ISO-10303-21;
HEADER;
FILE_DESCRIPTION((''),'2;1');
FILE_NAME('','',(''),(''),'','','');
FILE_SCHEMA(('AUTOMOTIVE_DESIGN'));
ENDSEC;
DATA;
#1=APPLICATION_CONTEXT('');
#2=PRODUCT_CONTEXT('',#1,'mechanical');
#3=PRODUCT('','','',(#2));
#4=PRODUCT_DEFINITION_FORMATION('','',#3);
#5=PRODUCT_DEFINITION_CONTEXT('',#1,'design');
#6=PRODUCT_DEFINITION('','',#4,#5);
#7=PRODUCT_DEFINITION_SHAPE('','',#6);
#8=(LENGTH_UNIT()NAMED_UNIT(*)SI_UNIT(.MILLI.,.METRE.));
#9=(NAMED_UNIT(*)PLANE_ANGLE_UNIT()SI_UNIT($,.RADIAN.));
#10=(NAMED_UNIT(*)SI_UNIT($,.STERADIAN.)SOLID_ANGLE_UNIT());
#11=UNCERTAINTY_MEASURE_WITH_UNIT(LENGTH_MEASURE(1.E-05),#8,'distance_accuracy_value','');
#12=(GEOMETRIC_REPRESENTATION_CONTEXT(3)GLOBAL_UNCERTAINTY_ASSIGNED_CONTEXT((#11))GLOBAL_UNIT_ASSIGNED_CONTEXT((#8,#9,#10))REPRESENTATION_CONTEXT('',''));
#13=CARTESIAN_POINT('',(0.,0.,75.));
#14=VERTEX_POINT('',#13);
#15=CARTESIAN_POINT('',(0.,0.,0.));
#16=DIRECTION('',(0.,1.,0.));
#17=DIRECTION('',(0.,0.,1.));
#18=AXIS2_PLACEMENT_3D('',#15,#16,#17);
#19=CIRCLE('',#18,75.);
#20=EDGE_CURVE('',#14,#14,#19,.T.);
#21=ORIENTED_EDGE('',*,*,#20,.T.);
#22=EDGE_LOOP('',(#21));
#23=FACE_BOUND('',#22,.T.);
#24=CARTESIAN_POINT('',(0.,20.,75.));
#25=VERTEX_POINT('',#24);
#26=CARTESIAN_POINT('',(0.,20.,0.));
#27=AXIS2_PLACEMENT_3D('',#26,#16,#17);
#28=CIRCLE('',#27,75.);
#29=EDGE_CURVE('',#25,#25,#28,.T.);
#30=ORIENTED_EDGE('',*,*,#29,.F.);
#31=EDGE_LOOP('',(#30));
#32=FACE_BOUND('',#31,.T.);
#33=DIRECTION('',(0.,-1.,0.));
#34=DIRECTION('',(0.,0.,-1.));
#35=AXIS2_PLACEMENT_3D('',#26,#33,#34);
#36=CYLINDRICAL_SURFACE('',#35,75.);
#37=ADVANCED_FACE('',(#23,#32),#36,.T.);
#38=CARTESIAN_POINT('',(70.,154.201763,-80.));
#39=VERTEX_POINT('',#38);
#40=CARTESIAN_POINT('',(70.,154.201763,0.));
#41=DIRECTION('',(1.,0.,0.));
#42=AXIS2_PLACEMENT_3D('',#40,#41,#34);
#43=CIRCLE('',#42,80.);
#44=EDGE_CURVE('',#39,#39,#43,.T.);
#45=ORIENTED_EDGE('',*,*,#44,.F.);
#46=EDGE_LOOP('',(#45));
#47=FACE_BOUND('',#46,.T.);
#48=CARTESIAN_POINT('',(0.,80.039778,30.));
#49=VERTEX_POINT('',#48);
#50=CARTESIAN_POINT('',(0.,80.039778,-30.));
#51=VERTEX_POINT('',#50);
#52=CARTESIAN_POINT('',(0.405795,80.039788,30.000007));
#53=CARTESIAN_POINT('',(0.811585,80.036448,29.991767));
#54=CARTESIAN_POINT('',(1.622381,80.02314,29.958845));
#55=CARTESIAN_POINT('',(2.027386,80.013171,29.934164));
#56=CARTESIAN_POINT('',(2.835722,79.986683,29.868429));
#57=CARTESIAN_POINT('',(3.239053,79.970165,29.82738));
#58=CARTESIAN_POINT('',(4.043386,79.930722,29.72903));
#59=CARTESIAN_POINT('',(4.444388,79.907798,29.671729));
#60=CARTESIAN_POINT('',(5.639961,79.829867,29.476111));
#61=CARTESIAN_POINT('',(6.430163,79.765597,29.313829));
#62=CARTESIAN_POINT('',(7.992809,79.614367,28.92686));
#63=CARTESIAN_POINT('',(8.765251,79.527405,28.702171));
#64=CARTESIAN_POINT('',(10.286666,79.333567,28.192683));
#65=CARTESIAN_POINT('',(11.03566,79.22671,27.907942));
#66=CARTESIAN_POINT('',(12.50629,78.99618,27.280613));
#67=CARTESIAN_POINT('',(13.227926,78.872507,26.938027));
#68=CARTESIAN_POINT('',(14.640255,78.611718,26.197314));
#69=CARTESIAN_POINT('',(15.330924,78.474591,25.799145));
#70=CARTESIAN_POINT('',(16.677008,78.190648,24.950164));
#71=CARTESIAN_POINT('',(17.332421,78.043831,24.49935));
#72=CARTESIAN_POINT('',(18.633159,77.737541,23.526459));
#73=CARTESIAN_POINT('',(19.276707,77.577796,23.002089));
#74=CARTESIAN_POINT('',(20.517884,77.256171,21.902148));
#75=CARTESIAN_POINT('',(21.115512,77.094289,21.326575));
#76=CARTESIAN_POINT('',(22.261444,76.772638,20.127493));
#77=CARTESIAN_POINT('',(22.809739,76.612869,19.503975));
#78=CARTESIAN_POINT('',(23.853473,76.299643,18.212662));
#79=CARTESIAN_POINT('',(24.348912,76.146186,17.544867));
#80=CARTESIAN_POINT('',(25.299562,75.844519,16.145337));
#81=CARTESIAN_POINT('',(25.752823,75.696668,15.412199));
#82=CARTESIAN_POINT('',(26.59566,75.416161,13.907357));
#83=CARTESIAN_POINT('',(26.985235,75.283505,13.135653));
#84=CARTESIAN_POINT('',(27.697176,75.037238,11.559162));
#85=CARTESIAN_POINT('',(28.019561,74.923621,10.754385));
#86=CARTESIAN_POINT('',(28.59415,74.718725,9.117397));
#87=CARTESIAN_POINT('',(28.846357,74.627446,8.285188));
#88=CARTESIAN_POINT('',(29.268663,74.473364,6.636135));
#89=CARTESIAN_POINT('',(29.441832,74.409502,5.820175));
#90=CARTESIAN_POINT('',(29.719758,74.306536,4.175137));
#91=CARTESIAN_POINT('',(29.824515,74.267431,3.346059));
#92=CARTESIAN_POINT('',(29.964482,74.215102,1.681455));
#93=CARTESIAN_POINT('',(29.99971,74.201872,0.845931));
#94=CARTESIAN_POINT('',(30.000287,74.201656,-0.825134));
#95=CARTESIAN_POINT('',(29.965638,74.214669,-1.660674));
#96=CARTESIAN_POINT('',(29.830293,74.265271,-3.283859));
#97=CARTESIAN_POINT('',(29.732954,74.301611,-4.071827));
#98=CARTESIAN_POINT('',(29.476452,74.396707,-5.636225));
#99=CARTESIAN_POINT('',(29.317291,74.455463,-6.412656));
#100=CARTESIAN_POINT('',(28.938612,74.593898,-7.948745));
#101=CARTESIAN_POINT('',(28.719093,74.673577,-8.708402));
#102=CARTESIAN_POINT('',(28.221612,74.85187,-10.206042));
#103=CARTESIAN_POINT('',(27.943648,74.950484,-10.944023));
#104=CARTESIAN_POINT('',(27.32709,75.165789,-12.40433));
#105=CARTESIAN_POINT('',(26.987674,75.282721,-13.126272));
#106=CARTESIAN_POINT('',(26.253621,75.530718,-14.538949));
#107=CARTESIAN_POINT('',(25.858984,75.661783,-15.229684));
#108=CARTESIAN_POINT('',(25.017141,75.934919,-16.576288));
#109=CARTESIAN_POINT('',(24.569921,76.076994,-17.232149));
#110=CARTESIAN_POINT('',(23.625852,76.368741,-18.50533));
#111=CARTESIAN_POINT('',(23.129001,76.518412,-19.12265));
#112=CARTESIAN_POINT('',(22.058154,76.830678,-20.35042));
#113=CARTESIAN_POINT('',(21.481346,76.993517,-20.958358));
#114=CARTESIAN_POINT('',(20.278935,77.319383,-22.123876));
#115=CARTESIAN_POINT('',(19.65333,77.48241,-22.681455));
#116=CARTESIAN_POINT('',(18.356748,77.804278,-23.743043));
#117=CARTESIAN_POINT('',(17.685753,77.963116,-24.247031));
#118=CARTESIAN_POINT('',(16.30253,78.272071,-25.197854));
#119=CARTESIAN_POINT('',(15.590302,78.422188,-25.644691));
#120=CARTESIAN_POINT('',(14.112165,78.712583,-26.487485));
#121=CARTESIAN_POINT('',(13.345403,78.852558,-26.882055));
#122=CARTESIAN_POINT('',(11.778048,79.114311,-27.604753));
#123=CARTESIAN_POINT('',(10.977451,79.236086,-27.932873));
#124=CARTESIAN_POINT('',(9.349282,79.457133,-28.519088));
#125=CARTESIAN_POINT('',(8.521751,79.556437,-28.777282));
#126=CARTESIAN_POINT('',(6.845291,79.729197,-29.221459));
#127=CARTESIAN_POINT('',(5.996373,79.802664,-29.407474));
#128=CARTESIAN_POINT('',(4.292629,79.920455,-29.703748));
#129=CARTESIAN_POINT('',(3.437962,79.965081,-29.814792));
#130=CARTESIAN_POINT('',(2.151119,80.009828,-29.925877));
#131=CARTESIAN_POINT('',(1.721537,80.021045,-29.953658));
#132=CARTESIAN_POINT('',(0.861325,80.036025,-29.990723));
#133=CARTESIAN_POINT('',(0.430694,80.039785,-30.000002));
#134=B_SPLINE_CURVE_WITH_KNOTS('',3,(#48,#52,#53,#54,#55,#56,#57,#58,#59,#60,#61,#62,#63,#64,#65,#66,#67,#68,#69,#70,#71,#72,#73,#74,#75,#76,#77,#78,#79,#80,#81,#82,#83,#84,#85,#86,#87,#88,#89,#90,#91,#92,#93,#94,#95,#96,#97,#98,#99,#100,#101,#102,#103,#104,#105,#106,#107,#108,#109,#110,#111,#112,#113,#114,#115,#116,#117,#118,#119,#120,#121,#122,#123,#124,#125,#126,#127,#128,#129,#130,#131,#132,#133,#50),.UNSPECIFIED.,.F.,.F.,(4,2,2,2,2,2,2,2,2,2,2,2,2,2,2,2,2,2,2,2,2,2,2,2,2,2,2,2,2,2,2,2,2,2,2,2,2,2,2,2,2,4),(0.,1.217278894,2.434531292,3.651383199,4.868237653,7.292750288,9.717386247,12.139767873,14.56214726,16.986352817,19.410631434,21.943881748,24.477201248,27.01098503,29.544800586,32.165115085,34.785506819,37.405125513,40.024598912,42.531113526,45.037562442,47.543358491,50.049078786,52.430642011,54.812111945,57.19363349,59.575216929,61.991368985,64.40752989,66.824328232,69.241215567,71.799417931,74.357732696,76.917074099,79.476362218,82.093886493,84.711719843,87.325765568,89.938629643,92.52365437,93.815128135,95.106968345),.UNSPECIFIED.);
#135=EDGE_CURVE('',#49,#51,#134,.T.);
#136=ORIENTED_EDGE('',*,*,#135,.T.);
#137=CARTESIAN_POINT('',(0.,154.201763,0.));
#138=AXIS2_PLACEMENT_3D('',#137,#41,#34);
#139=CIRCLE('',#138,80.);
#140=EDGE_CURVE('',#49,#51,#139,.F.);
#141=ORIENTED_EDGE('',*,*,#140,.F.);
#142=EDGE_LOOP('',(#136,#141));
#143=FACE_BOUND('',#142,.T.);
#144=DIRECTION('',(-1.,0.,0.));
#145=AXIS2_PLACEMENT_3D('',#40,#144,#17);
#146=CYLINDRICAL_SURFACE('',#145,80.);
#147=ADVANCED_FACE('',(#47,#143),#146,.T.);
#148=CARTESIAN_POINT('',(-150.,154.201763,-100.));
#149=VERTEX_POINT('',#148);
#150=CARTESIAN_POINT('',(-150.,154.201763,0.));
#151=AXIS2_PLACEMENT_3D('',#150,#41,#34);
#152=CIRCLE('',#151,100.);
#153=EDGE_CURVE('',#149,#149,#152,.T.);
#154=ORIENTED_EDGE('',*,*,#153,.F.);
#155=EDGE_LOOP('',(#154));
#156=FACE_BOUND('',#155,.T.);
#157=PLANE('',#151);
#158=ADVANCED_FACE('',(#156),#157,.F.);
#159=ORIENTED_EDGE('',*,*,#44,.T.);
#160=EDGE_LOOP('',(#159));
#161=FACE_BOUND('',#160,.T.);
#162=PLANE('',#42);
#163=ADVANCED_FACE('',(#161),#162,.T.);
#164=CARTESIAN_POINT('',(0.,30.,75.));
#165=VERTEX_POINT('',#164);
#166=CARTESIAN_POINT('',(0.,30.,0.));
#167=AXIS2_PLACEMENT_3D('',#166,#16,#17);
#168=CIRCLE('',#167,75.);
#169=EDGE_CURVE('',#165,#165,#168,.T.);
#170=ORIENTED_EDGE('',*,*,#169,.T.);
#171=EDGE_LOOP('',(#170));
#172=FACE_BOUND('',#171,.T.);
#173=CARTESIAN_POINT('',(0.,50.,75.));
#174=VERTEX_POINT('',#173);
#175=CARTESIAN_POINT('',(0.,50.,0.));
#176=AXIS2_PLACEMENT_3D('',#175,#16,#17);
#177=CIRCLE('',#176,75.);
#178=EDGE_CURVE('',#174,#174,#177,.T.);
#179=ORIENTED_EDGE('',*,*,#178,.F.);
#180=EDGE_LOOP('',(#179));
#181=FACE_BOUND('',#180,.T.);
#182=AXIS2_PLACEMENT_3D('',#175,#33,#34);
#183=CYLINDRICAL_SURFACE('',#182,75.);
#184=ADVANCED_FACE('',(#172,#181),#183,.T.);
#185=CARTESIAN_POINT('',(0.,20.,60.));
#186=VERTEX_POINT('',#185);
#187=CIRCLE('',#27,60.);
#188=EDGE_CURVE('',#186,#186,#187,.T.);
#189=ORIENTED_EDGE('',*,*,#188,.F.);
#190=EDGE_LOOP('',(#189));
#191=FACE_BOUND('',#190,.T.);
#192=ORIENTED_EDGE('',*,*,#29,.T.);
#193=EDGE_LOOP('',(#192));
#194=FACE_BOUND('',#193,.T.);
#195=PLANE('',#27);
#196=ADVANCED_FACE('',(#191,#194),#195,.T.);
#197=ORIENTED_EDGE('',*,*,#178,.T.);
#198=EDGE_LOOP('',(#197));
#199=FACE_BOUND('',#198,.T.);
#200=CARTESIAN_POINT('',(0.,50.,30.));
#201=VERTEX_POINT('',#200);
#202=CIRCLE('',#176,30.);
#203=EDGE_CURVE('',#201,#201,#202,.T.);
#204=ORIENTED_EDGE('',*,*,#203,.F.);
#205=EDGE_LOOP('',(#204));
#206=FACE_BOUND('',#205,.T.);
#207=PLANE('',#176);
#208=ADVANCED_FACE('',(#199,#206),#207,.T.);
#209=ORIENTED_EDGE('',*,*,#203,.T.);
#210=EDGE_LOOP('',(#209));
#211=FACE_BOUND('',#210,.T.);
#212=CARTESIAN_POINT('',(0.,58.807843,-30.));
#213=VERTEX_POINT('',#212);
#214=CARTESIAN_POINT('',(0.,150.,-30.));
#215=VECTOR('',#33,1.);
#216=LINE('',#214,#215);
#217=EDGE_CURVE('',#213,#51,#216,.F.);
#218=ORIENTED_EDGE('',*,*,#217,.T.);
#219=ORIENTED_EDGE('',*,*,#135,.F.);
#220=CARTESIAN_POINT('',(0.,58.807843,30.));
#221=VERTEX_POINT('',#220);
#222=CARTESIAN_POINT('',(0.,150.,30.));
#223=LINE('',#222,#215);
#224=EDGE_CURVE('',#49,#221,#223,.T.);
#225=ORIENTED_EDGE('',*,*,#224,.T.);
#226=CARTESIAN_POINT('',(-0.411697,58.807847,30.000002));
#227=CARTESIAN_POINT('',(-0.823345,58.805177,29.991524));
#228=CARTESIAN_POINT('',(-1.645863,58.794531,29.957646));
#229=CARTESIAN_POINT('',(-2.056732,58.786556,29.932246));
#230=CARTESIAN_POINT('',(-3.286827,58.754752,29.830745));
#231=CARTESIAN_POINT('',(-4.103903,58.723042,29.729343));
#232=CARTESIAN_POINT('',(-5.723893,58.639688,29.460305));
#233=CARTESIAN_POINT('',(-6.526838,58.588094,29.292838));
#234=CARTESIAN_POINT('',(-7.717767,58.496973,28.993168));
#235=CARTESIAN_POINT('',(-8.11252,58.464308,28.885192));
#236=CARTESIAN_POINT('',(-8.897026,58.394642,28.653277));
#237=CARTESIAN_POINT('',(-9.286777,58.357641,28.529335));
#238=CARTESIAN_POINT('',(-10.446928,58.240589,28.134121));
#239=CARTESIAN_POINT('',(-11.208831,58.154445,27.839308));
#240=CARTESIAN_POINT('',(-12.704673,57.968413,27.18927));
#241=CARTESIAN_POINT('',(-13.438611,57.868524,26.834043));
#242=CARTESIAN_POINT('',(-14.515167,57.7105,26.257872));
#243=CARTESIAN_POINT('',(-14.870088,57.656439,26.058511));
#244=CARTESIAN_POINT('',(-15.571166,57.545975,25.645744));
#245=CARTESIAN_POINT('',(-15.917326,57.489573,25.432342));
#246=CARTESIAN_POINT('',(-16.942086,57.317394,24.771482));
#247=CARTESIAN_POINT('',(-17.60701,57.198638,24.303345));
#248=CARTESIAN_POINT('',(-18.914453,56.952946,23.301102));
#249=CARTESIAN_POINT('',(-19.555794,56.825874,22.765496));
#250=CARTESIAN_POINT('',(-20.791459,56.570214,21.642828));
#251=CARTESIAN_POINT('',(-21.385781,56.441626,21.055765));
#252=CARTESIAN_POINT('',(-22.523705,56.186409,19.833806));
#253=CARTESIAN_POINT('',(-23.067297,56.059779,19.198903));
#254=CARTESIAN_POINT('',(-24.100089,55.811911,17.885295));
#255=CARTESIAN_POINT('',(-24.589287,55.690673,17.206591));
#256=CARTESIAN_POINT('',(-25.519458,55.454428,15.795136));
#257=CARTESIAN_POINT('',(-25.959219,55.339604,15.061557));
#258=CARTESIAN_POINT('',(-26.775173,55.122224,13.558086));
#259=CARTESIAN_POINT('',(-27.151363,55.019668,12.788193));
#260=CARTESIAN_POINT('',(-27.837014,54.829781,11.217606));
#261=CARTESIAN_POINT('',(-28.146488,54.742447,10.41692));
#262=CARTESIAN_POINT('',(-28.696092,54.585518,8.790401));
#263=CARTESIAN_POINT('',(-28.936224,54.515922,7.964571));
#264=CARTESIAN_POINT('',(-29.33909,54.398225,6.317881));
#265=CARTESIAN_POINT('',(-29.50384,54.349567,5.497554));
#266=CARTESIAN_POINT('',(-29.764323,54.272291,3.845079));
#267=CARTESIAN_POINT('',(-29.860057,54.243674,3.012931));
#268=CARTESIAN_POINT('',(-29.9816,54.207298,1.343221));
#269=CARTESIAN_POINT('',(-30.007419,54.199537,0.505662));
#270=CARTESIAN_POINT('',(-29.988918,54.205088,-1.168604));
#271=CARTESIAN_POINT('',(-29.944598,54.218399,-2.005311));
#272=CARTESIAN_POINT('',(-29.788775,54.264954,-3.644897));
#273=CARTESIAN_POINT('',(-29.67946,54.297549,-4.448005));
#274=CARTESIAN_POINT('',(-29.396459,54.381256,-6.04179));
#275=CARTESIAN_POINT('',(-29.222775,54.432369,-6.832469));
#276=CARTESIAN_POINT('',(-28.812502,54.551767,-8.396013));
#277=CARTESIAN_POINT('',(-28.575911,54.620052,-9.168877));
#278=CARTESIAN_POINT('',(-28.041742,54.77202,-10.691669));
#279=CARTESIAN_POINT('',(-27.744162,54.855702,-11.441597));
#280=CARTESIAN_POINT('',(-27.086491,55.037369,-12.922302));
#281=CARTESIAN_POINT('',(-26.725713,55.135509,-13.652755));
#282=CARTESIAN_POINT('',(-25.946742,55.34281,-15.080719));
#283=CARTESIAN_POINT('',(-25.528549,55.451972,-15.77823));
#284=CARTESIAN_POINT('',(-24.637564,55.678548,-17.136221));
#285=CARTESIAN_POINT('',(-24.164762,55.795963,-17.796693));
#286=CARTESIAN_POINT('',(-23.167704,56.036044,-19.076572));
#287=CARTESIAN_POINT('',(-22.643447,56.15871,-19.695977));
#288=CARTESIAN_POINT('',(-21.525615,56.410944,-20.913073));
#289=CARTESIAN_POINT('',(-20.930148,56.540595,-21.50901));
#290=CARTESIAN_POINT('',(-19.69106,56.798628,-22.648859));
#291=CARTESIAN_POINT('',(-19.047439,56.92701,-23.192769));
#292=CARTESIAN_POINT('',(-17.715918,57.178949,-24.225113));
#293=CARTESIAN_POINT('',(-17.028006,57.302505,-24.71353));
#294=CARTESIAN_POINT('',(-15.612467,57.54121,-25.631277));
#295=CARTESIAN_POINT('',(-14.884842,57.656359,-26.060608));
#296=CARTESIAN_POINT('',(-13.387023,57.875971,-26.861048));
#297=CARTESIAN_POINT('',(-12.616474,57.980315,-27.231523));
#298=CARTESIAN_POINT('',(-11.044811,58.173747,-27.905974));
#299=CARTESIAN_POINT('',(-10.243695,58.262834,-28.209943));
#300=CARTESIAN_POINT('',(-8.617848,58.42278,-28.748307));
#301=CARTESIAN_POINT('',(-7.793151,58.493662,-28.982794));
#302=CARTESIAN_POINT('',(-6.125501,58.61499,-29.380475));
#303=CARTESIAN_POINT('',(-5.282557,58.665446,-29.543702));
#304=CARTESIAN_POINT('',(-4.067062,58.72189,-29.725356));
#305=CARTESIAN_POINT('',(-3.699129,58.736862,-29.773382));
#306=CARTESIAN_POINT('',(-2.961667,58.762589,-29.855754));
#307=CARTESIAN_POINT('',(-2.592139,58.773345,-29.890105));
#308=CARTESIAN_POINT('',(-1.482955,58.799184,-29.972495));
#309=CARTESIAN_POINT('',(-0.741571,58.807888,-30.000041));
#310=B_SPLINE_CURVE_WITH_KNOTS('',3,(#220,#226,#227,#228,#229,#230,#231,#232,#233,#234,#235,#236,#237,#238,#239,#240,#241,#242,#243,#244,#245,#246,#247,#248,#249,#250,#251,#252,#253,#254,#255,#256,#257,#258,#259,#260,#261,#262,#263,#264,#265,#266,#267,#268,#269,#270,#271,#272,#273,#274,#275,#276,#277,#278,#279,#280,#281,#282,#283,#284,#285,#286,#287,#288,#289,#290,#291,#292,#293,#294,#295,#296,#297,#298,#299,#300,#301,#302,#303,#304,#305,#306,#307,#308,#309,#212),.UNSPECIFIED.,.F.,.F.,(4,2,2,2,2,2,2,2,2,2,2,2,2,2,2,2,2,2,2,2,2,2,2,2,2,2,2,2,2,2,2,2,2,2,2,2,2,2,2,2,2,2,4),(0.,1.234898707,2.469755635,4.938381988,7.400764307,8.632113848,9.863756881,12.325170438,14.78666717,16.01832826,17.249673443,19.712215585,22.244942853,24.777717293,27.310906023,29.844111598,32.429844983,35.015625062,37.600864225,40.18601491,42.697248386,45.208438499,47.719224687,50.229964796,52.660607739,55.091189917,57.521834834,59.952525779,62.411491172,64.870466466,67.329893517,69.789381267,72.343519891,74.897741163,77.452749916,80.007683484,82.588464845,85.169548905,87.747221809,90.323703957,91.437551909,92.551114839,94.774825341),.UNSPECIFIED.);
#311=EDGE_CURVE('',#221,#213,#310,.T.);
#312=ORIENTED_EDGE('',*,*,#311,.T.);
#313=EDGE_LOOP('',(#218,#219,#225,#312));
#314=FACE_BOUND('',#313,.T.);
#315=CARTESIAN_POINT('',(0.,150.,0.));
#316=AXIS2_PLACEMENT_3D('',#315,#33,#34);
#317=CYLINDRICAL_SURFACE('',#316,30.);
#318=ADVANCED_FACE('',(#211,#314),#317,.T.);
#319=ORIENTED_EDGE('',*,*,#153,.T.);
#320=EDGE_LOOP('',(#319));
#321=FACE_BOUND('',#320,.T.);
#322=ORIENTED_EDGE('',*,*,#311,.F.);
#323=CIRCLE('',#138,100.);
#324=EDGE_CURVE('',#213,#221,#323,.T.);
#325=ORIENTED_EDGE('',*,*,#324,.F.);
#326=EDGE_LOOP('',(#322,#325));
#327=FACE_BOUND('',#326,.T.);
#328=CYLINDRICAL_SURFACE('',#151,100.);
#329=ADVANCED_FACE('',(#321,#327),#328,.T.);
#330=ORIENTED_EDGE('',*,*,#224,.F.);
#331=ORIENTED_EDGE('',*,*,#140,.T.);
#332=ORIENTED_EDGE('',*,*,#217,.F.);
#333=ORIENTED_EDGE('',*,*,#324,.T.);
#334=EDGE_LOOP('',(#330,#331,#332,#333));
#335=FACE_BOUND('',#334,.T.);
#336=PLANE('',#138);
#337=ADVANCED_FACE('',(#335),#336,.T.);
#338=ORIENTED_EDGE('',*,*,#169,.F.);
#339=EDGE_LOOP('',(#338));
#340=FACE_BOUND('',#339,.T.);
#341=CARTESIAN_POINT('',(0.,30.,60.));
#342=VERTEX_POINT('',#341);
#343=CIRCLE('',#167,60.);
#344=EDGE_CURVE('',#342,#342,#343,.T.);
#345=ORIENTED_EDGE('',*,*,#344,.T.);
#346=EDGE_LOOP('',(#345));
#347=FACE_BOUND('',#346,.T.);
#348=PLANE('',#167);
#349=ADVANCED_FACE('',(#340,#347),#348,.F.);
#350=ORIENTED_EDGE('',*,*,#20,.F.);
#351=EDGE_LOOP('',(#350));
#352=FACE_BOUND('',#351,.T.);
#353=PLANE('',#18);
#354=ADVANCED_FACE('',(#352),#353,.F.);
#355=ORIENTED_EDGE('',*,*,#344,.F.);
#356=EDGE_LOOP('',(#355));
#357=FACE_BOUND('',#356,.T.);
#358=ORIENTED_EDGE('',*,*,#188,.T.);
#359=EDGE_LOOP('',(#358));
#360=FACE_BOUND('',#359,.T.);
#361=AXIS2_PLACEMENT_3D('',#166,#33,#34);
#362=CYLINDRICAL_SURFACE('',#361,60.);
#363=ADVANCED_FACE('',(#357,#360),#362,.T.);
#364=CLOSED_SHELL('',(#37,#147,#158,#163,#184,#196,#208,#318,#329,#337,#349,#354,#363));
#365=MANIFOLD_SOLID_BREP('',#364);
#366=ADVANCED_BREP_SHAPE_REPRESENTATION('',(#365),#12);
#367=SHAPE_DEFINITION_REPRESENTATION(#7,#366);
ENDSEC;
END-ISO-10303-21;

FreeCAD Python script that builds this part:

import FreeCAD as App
import Part
import Sketcher
from FreeCAD import Vector
Q = App.Units.Quantity

doc = App.newDocument("Part")
body = doc.addObject("PartDesign::Body", "Body")

# Sketch on XZ plane
sketch1 = doc.addObject("Sketcher::SketchObject", "Sketch")
body.addObject(sketch1)
sketch1.AttachmentSupport = (doc.XZ_Plane, [""])
sketch1.MapMode = "FlatFace"
sketch1.addGeometry(Part.Circle(Vector(0, 0, 0), Vector(0, 0, 1), 75), False)
sketch1.addConstraint([
    Sketcher.Constraint("Coincident", 0, 3, -1, 1),
    Sketcher.Constraint("Diameter", 0, Q("150 mm")),
])
pad1 = doc.addObject("PartDesign::Pad", "Pad")
body.addObject(pad1)
pad1.Profile = sketch1
pad1.Length = 20
pad1.Reversed = True

# Sketch on XZ plane
sketch2 = doc.addObject("Sketcher::SketchObject", "Sketch001")
body.addObject(sketch2)
sketch2.AttachmentSupport = (doc.XZ_Plane, [""])
sketch2.MapMode = "FlatFace"
sketch2.AttachmentOffset = App.Placement(Vector(0, 0, -20), App.Rotation())
sketch2.addGeometry(Part.Circle(Vector(0, 0, 0), Vector(0, 0, 1), 60), False)
sketch2.addConstraint([
    Sketcher.Constraint("Coincident", 0, 3, -1, 1),
    Sketcher.Constraint("Diameter", 0, Q("120 mm")),
])
pad2 = doc.addObject("PartDesign::Pad", "Pad001")
body.addObject(pad2)
pad2.Profile = sketch2
pad2.Length = 10
pad2.Reversed = True

# Sketch on XZ plane
sketch3 = doc.addObject("Sketcher::SketchObject", "Sketch002")
body.addObject(sketch3)
sketch3.AttachmentSupport = (doc.XZ_Plane, [""])
sketch3.MapMode = "FlatFace"
sketch3.AttachmentOffset = App.Placement(Vector(0, 0, -30), App.Rotation())
sketch3.addGeometry(Part.Circle(Vector(0, 0, 0), Vector(0, 0, 1), 75), False)
sketch3.addConstraint([
    Sketcher.Constraint("Coincident", 0, 3, -1, 1),
    Sketcher.Constraint("Diameter", 0, Q("150 mm")),
])
pad3 = doc.addObject("PartDesign::Pad", "Pad002")
body.addObject(pad3)
pad3.Profile = sketch3
pad3.Length = 20
pad3.Reversed = True

# Sketch on XZ plane
sketch4 = doc.addObject("Sketcher::SketchObject", "Sketch003")
body.addObject(sketch4)
sketch4.AttachmentSupport = (doc.XZ_Plane, [""])
sketch4.MapMode = "FlatFace"
sketch4.AttachmentOffset = App.Placement(Vector(0, 0, -50), App.Rotation())
sketch4.addGeometry(Part.Circle(Vector(0, 0, 0), Vector(0, 0, 1), 30), False)
sketch4.addConstraint([
    Sketcher.Constraint("Coincident", 0, 3, -1, 1),
    Sketcher.Constraint("Diameter", 0, Q("60 mm")),
])
pad4 = doc.addObject("PartDesign::Pad", "Pad003")
body.addObject(pad4)
pad4.Profile = sketch4
pad4.Length = 100
pad4.Reversed = True

# Sketch on YZ plane
sketch5 = doc.addObject("Sketcher::SketchObject", "Sketch004")
body.addObject(sketch5)
sketch5.AttachmentSupport = (doc.YZ_Plane, [""])
sketch5.MapMode = "FlatFace"
sketch5.addGeometry(Part.Circle(Vector(154, 0, 0), Vector(0, 0, 1), 100), False)
sketch5.addConstraint([
    Sketcher.Constraint("PointOnObject", 0, 3, -1),
    Sketcher.Constraint("Diameter", 0, Q("200 mm")),
    Sketcher.Constraint("DistanceX", -1, 1, 0, 3, Q("154.201763 mm")),
])
pad5 = doc.addObject("PartDesign::Pad", "Pad004")
body.addObject(pad5)
pad5.Profile = sketch5
pad5.Length = 150
pad5.Reversed = True

# Sketch on YZ plane
sketch6 = doc.addObject("Sketcher::SketchObject", "Sketch005")
body.addObject(sketch6)
sketch6.AttachmentSupport = (doc.YZ_Plane, [""])
sketch6.MapMode = "FlatFace"
sketch6.addGeometry(Part.Circle(Vector(154, 0, 0), Vector(0, 0, 1), 80), False)
sketch6.addConstraint([
    Sketcher.Constraint("PointOnObject", 0, 3, -1),
    Sketcher.Constraint("Diameter", 0, Q("160 mm")),
    Sketcher.Constraint("DistanceX", -1, 1, 0, 3, Q("154.201763 mm")),
])
pad6 = doc.addObject("PartDesign::Pad", "Pad005")
body.addObject(pad6)
pad6.Profile = sketch6
pad6.Length = 70

doc.recompute()
